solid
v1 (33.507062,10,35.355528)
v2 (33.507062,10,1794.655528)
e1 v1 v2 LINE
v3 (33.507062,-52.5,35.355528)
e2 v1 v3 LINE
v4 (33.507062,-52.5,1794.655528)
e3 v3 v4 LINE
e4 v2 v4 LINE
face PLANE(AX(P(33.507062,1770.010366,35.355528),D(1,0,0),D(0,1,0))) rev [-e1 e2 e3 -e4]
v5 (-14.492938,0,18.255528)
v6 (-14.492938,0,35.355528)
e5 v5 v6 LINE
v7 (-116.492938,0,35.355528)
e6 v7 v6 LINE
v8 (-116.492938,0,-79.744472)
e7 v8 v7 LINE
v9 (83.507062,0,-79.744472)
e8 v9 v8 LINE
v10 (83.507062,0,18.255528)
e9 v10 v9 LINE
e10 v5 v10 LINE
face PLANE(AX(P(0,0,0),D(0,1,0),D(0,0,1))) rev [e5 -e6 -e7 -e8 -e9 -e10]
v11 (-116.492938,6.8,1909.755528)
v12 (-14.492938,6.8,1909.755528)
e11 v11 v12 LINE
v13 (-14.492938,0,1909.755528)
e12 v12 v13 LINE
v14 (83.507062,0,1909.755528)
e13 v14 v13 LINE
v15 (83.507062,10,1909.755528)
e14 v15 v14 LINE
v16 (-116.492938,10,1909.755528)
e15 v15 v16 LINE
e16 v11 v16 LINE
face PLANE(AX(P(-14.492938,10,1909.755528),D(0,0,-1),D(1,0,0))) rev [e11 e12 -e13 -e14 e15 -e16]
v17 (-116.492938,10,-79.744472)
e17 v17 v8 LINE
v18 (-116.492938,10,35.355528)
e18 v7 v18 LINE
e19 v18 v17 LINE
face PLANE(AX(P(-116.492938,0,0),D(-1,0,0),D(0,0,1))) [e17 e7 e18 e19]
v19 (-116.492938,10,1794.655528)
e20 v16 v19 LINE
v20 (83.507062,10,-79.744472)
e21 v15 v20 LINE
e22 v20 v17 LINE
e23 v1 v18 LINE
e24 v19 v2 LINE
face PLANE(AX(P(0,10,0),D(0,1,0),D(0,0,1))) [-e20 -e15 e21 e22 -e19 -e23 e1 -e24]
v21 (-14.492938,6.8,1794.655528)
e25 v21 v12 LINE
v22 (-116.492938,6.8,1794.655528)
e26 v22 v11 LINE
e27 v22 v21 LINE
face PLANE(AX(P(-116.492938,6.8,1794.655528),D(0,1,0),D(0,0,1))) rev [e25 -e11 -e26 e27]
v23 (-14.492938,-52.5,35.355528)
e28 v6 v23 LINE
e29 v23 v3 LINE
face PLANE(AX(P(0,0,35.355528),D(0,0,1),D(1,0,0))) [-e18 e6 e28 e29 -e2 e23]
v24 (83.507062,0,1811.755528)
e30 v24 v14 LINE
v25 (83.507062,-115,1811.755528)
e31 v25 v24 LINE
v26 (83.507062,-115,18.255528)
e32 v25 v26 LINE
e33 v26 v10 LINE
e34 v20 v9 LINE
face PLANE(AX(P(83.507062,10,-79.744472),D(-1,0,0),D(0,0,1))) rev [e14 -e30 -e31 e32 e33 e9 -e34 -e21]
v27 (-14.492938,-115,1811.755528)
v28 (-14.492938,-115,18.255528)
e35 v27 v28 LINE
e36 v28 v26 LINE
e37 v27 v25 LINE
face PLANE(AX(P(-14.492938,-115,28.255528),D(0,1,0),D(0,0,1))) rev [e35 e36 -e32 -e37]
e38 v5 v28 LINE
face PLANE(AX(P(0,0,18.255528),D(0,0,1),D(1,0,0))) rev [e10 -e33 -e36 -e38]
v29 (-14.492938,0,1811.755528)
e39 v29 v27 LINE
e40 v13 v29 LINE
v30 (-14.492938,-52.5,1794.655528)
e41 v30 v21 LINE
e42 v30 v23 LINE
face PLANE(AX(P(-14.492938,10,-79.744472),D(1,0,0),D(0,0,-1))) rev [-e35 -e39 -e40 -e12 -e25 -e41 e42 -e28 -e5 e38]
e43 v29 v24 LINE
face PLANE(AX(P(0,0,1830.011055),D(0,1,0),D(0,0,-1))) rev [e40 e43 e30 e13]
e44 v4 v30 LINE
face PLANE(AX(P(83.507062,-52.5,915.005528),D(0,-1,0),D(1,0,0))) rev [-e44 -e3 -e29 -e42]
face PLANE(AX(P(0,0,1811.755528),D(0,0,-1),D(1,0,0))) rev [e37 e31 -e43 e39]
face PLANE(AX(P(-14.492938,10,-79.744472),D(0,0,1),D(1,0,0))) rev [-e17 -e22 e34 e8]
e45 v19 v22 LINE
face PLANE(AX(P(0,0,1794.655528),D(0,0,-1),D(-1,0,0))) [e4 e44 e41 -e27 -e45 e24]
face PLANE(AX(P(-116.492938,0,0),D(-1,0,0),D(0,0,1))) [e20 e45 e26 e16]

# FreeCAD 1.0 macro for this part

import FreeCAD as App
import Part
import Sketcher

V = App.Vector


def add_polygon(sketch, points):
    """Adds a closed chain of lines whose ends are joined by coincident constraints."""
    first, n = sketch.GeometryCount, len(points)
    for a, b in zip(points, points[1:] + points[:1]):
        sketch.addGeometry(Part.LineSegment(App.Vector(*a, 0), App.Vector(*b, 0)), False)
    for i in range(n):
        sketch.addConstraint(Sketcher.Constraint("Coincident", first + i, 2, first + (i + 1) % n, 1))

doc = App.newDocument("Part")
body = doc.addObject("PartDesign::Body", "Body")

# Sketch on XZ plane
sketch1 = body.newObject("Sketcher::SketchObject", "Sketch")
sketch1.AttachmentSupport = (doc.getObject("XZ_Plane"), [""])
sketch1.MapMode = "FlatFace"
add_polygon(sketch1, [(-14.492938, -79.744472), (-14.492938, 18.255528), (83.507062, 18.255528), (83.507062, -79.744472)])  # lines 0-3
sketch1.addConstraint([
    Sketcher.Constraint("Vertical", 0),
    Sketcher.Constraint("Horizontal", 1),
    Sketcher.Constraint("Vertical", 2),
    Sketcher.Constraint("Horizontal", 3),
    Sketcher.Constraint("Equal", 3, 0),
    Sketcher.Constraint("DistanceX", 1, 1, 1, 2, 98.0),
    Sketcher.Constraint("DistanceX", 0, 2, -1, 1, 14.492938),
    Sketcher.Constraint("DistanceY", -1, 1, 0, 2, 18.255528),
])
pad1 = body.newObject("PartDesign::Pad", "Pad")
pad1.Profile = sketch1
pad1.Length = 10
pad1.Reversed = True

# Sketch on XY plane
sketch2 = body.newObject("Sketcher::SketchObject", "Sketch001")
sketch2.AttachmentSupport = (doc.getObject("XY_Plane"), [""])
sketch2.MapMode = "FlatFace"
sketch2.AttachmentOffset = App.Placement(V(0, 0, 18.255528), App.Rotation())
add_polygon(sketch2, [(-14.492938, 10), (-14.492938, -115), (83.507062, -115), (83.507062, 10)])  # lines 0-3
sketch2.addConstraint([
    Sketcher.Constraint("Vertical", 0),
    Sketcher.Constraint("Horizontal", 1),
    Sketcher.Constraint("Vertical", 2),
    Sketcher.Constraint("Horizontal", 3),
    Sketcher.Constraint("DistanceX", 1, 1, 1, 2, 98.0),
    Sketcher.Constraint("DistanceY", 0, 2, 0, 1, 125.0),
    Sketcher.Constraint("DistanceY", 0, 2, -1, 1, 115.0),
    Sketcher.Constraint("DistanceX", 0, 2, -1, 1, 14.492938),
])
pad2 = body.newObject("PartDesign::Pad", "Pad001")
pad2.Profile = sketch2
pad2.Length = 10

# Sketch on XY plane
sketch3 = body.newObject("Sketcher::SketchObject", "Sketch002")
sketch3.AttachmentSupport = (doc.getObject("XY_Plane"), [""])
sketch3.MapMode = "FlatFace"
sketch3.AttachmentOffset = App.Placement(V(0, 0, 28.255528), App.Rotation())
add_polygon(sketch3, [(-14.492938, -52.5), (-14.492938, -115), (83.507062, -115), (83.507062, -52.5)])  # lines 0-3
sketch3.addConstraint([
    Sketcher.Constraint("Vertical", 0),
    Sketcher.Constraint("Horizontal", 1),
    Sketcher.Constraint("Vertical", 2),
    Sketcher.Constraint("Horizontal", 3),
    Sketcher.Constraint("DistanceX", 1, 1, 1, 2, 98.0),
    Sketcher.Constraint("DistanceY", 0, 2, 0, 1, 62.5),
    Sketcher.Constraint("DistanceY", 0, 2, -1, 1, 115.0),
    Sketcher.Constraint("DistanceX", 0, 2, -1, 1, 14.492938),
])
pad3 = body.newObject("PartDesign::Pad", "Pad002")
pad3.Profile = sketch3
pad3.Length = 886.75
body2 = doc.addObject("PartDesign::Body", "Body001")
doc.recompute()

body2.BaseFeature = body
doc.recompute()

mirroring = doc.addObject("Part::Mirroring", "Mirroring")
mirroring.Source = body
mirroring.Base = V(0, 0, 915.005528)
mirroring.Normal = V(0, 0, 1)
body3 = doc.addObject("PartDesign::Body", "Body002")
body3.BaseFeature = mirroring
boolean = body2.newObject("PartDesign::Boolean", "Boolean")
boolean.Type = "Fuse"
boolean.addObjects([body3])
doc.recompute()

# Sketch on XY plane
sketch4 = body2.newObject("Sketcher::SketchObject", "Sketch003")
sketch4.AttachmentSupport = (doc.getObject("XY_Plane001"), [""])
sketch4.MapMode = "FlatFace"
sketch4.AttachmentOffset = App.Placement(V(0, 0, 28.255528), App.Rotation())
add_polygon(sketch4, [(-14.492938, 10), (-14.492938, -52.5), (83.507062, -52.5), (83.507062, 10)])  # lines 0-3
sketch4.addConstraint([
    Sketcher.Constraint("Vertical", 0),
    Sketcher.Constraint("Horizontal", 1),
    Sketcher.Constraint("Vertical", 2),
    Sketcher.Constraint("Horizontal", 3),
    Sketcher.Constraint("DistanceX", 1, 1, 1, 2, 98.0),
    Sketcher.Constraint("DistanceY", 0, 2, 0, 1, 62.5),
    Sketcher.Constraint("DistanceY", -1, 1, 2, 2, 10.0),
    Sketcher.Constraint("DistanceX", 0, 2, -1, 1, 14.492938),
])
pad4 = body2.newObject("PartDesign::Pad", "Pad003")
pad4.Profile = sketch4
pad4.Length = 7.1

# Sketch on XY plane
sketch5 = body2.newObject("Sketcher::SketchObject", "Sketch004")
sketch5.AttachmentSupport = (doc.getObject("XY_Plane001"), [""])
sketch5.MapMode = "FlatFace"
sketch5.AttachmentOffset = App.Placement(V(0, 0, 1801.755528), App.Rotation())
add_polygon(sketch5, [(83.507062, 10), (83.507062, -52.5), (-14.492938, -52.5), (-14.492938, 10)])  # lines 0-3
sketch5.addConstraint([
    Sketcher.Constraint("Vertical", 0),
    Sketcher.Constraint("Horizontal", 1),
    Sketcher.Constraint("Vertical", 2),
    Sketcher.Constraint("Horizontal", 3),
    Sketcher.Constraint("DistanceX", 1, 2, 1, 1, 98.0),
    Sketcher.Constraint("DistanceY", 0, 2, 0, 1, 62.5),
    Sketcher.Constraint("DistanceY", -1, 1, 2, 2, 10.0),
    Sketcher.Constraint("DistanceX", -1, 1, 0, 2, 83.507062),
])
pad5 = body2.newObject("PartDesign::Pad", "Pad004")
pad5.Profile = sketch5
pad5.Length = 7.1
pad5.Reversed = True

# Sketch on YZ plane
sketch6 = body2.newObject("Sketcher::SketchObject", "Sketch005")
sketch6.AttachmentSupport = (doc.getObject("YZ_Plane001"), [""])
sketch6.MapMode = "FlatFace"
sketch6.AttachmentOffset = App.Placement(V(0, 0, -14.492938), App.Rotation())
add_polygon(sketch6, [(10, -79.744472), (0, -79.744472), (0, 35.355528), (10, 35.355528)])  # lines 0-3
add_polygon(sketch6, [(10, 1794.655528), (6.8, 1794.655528), (6.8, 1909.755528), (10, 1909.755528)])  # lines 4-7
sketch6.addConstraint([
    Sketcher.Constraint("Horizontal", 0),
    Sketcher.Constraint("Vertical", 1),
    Sketcher.Constraint("Horizontal", 2),
    Sketcher.Constraint("Vertical", 3),
    Sketcher.Constraint("Horizontal", 4),
    Sketcher.Constraint("Vertical", 5),
    Sketcher.Constraint("Horizontal", 6),
    Sketcher.Constraint("Vertical", 7),
    Sketcher.Constraint("PointOnObject", 0, 2, -2),
    Sketcher.Constraint("Vertical", 3, 2, 6, 2),
    Sketcher.Constraint("Equal", 3, 5),
    Sketcher.Constraint("DistanceX", 0, 2, 0, 1, 10.0),
    Sketcher.Constraint("DistanceX", 4, 2, 4, 1, 3.2),
    Sketcher.Constraint("DistanceY", 1, 1, 1, 2, 115.1),
    Sketcher.Constraint("DistanceY", 2, 2, 4, 2, 1759.3),
    Sketcher.Constraint("DistanceY", 0, 2, -1, 1, 79.744472),
])
pad6 = body2.newObject("PartDesign::Pad", "Pad005")
pad6.Profile = sketch6
pad6.Length = 102
pad6.Reversed = True

# Sketch on XZ plane
sketch7 = body2.newObject("Sketcher::SketchObject", "Sketch006")
sketch7.AttachmentSupport = (doc.getObject("XZ_Plane001"), [""])
sketch7.MapMode = "FlatFace"
sketch7.AttachmentOffset = App.Placement(V(0, 0, 52.5), App.Rotation())
add_polygon(sketch7, [(33.507062, 35.355528), (33.507062, 1794.655528), (83.507062, 1794.655528), (83.507062, 35.355528)])  # lines 0-3
sketch7.addConstraint([
    Sketcher.Constraint("Vertical", 0),
    Sketcher.Constraint("Horizontal", 1),
    Sketcher.Constraint("Vertical", 2),
    Sketcher.Constraint("Horizontal", 3),
    Sketcher.Constraint("DistanceX", 1, 1, 1, 2, 50.0),
    Sketcher.Constraint("DistanceY", 0, 1, 0, 2, 1759.3),
    Sketcher.Constraint("DistanceX", -1, 1, 0, 2, 33.507062),
    Sketcher.Constraint("DistanceY", -1, 1, 0, 2, 1794.655528),
])
pad7 = body2.newObject("PartDesign::Pad", "Pad006")
pad7.Profile = sketch7
pad7.Length = 62.5
pad7.Reversed = True
mirroring.Visibility = False

doc.recompute()
